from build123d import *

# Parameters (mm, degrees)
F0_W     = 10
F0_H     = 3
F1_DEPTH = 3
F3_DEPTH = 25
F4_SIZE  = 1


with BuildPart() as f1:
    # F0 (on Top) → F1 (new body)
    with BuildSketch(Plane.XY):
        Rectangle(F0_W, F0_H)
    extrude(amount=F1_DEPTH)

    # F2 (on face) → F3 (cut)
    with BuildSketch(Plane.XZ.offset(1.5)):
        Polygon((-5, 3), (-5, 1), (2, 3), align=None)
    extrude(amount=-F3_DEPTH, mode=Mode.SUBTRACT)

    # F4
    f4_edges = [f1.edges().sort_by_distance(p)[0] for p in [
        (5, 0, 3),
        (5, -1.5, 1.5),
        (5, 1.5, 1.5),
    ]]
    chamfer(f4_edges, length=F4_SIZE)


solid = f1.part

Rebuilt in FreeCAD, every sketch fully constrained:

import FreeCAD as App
import Part
import Sketcher

V = App.Vector


def edges_at(feature, points):
    """Names of the edges that pass closest to the given points."""
    edges = feature.Shape.Edges
    near = lambda p: min(range(len(edges)), key=lambda i: edges[i].distToShape(Part.Vertex(*p))[0])
    return sorted({f"Edge{near(p) + 1}" for p in points})

doc = App.newDocument("Part")
params = doc.addObject("Spreadsheet::Sheet", "Params")
for row, (alias, value) in enumerate([
    ("sketch1_width", "10 mm"),
    ("sketch1_height", "3 mm"),
    ("pad1_length", "3 mm"),
    ("sketch2_width", "7 mm"),
    ("sketch2_height", "2 mm"),
    ("pocket1_length", "25 mm"),
    ("chamfer_size", "1 mm"),
], start=1):
    params.set(f"A{row}", alias)
    params.set(f"B{row}", "=" + value)
    params.setAlias(f"B{row}", alias)

body = doc.addObject("PartDesign::Body", "Body")

sketch1 = body.newObject("Sketcher::SketchObject", "Sketch")
sketch1.AttachmentSupport = (doc.getObject("XY_Plane"), [""])
sketch1.MapMode = "FlatFace"
sketch1.addGeometry([
    Part.LineSegment(V(-5, 1.5, 0), V(-5, -1.5, 0)),
    Part.LineSegment(V(-5, -1.5, 0), V(5, -1.5, 0)),
    Part.LineSegment(V(5, -1.5, 0), V(5, 1.5, 0)),
    Part.LineSegment(V(5, 1.5, 0), V(-5, 1.5, 0)),
], False)
sketch1.addConstraint([
    Sketcher.Constraint("Coincident", 0, 2, 1, 1),
    Sketcher.Constraint("Coincident", 1, 2, 2, 1),
    Sketcher.Constraint("Coincident", 2, 2, 3, 1),
    Sketcher.Constraint("Coincident", 3, 2, 0, 1),
    Sketcher.Constraint("Vertical", 0),
    Sketcher.Constraint("Horizontal", 1),
    Sketcher.Constraint("Vertical", 2),
    Sketcher.Constraint("Horizontal", 3),
    Sketcher.Constraint("Symmetric", 0, 2, 2, 2, -1, 1),
    Sketcher.Constraint("DistanceX", 1, 1, 1, 2, 10.0),
    Sketcher.Constraint("DistanceY", 0, 2, 0, 1, 3.0),
])
sketch1.setExpression("Constraints[9]", "Params.sketch1_width")
sketch1.setExpression("Constraints[10]", "Params.sketch1_height")
pad1 = body.newObject("PartDesign::Pad", "Pad")
pad1.Profile = sketch1
pad1.setExpression("Length", "Params.pad1_length")

sketch2 = body.newObject("Sketcher::SketchObject", "Sketch001")
sketch2.AttachmentSupport = (doc.getObject("XZ_Plane"), [""])
sketch2.MapMode = "FlatFace"
sketch2.AttachmentOffset = App.Placement(V(0, 0, 1.5), App.Rotation())
sketch2.addGeometry([
    Part.LineSegment(V(-5, 3, 0), V(-5, 1, 0)),
    Part.LineSegment(V(-5, 1, 0), V(2, 3, 0)),
    Part.LineSegment(V(2, 3, 0), V(-5, 3, 0)),
], False)
sketch2.addConstraint([
    Sketcher.Constraint("Coincident", 0, 2, 1, 1),
    Sketcher.Constraint("Coincident", 1, 2, 2, 1),
    Sketcher.Constraint("Coincident", 2, 2, 0, 1),
    Sketcher.Constraint("Vertical", 0),
    Sketcher.Constraint("Horizontal", 2),
    Sketcher.Constraint("DistanceX", 2, 2, 2, 1, 7.0),
    Sketcher.Constraint("DistanceY", 0, 2, 0, 1, 2.0),
    Sketcher.Constraint("DistanceX", 0, 2, -1, 1, 5.0),
    Sketcher.Constraint("DistanceY", -1, 1, 0, 2, 1.0),
])
sketch2.setExpression("Constraints[5]", "Params.sketch2_width")
sketch2.setExpression("Constraints[6]", "Params.sketch2_height")
pocket1 = body.newObject("PartDesign::Pocket", "Pocket")
pocket1.Profile = sketch2
pocket1.setExpression("Length", "Params.pocket1_length")
doc.recompute()

chamfer = body.newObject("PartDesign::Chamfer", "Chamfer")
chamfer.Base = (pocket1, edges_at(pocket1, [(5, 0, 3), (5, -1.5, 1.5), (5, 1.5, 1.5)]))
chamfer.setExpression("Size", "Params.chamfer_size")

doc.recompute()
